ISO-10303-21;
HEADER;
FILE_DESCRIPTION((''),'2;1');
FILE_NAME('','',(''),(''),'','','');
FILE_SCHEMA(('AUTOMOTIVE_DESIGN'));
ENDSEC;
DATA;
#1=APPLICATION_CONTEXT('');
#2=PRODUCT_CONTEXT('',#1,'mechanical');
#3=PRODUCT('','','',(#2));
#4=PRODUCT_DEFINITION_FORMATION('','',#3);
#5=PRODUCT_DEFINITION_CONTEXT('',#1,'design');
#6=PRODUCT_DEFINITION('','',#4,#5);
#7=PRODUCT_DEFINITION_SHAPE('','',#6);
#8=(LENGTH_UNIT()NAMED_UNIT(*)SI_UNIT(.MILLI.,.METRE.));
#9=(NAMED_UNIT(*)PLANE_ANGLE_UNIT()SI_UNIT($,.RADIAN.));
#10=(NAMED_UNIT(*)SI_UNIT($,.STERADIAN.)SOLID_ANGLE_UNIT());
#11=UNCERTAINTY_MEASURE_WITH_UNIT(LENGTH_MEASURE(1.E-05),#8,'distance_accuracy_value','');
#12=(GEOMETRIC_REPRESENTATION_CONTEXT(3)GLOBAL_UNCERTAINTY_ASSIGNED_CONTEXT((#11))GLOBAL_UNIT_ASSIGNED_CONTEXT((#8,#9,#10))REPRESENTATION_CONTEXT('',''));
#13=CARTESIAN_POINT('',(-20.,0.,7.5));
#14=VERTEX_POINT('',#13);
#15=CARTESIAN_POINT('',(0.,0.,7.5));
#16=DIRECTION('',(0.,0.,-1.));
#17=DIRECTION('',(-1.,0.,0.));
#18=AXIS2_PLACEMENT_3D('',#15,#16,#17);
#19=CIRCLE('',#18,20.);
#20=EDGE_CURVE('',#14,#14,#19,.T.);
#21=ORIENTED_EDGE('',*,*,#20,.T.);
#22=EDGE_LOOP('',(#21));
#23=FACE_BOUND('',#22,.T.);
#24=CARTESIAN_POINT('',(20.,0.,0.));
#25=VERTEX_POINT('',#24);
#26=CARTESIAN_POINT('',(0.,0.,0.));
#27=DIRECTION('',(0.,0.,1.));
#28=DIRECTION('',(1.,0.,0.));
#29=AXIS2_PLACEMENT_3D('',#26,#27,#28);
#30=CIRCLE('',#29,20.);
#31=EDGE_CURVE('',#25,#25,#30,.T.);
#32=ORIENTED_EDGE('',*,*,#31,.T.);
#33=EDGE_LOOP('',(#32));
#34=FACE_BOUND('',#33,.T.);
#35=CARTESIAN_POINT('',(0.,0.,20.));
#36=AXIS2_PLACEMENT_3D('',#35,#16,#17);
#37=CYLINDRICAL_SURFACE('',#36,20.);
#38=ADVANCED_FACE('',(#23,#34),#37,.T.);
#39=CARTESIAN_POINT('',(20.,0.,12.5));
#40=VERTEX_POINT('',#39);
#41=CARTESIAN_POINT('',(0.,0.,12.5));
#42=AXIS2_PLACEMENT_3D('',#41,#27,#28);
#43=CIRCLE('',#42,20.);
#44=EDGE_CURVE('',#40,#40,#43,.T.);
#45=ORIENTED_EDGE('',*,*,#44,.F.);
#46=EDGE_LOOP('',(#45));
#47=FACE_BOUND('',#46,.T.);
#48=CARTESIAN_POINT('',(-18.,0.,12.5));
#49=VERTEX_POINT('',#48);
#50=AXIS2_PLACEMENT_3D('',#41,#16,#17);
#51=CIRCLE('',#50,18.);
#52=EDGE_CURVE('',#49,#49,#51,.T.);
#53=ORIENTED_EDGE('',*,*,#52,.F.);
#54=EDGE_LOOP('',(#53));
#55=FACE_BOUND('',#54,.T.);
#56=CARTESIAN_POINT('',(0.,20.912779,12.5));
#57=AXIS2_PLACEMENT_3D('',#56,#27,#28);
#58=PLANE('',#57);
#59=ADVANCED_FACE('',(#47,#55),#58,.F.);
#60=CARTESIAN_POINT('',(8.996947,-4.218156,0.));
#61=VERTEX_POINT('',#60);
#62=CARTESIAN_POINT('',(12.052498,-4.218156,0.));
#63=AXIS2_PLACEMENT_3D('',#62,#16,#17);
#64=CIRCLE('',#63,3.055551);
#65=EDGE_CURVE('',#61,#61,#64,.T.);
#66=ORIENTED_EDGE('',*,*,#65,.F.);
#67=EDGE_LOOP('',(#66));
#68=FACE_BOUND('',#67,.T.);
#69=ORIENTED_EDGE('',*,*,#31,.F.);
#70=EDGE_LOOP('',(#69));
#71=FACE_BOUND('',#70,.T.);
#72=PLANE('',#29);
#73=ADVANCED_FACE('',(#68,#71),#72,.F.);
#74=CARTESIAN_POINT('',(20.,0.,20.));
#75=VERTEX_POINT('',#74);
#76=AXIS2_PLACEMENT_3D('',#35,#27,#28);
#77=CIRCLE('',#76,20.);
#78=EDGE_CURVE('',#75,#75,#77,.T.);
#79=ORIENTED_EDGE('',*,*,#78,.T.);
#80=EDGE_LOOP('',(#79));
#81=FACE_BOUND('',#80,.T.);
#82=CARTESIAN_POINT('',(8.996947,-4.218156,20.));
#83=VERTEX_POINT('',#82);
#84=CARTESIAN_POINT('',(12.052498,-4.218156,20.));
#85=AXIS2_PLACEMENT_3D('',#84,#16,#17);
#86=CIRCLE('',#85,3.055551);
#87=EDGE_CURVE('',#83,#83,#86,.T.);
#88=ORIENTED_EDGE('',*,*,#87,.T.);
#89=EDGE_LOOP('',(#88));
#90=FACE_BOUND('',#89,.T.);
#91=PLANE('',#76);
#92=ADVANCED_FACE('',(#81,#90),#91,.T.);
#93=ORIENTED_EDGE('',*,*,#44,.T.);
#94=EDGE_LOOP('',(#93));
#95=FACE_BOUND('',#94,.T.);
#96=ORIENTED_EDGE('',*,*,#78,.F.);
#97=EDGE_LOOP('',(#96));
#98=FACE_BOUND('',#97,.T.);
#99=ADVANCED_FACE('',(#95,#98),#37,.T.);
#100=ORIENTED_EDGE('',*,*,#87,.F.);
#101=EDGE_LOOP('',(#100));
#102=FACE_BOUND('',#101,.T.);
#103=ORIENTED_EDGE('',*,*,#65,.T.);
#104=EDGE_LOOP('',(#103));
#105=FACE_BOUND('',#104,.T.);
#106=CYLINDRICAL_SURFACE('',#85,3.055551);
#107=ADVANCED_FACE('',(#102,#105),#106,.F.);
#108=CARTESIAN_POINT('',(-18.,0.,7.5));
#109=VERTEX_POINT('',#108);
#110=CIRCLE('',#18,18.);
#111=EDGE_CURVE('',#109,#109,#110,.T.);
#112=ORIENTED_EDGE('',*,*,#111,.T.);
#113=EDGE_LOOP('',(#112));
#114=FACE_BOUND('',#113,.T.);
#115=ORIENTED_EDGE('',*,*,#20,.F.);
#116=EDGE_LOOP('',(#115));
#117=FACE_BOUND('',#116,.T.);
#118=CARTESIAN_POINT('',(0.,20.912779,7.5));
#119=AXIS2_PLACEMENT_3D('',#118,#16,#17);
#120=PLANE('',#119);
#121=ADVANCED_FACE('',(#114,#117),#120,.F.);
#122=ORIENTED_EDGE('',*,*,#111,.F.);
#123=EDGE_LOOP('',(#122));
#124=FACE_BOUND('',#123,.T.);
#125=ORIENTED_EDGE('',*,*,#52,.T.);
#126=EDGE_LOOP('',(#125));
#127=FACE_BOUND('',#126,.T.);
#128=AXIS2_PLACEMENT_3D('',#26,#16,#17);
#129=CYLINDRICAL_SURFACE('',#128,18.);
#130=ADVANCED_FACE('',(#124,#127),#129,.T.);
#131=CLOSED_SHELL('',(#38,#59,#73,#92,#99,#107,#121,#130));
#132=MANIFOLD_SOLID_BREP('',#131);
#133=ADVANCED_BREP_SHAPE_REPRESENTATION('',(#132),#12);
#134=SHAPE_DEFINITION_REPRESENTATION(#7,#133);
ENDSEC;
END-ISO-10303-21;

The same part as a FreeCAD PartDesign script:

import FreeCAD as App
import Part
import Sketcher
from FreeCAD import Vector
Q = App.Units.Quantity


def add_polygon(sketch, points):
    """Adds a closed chain of lines whose ends are joined by coincident constraints."""
    first, n = sketch.GeometryCount, len(points)
    for a, b in zip(points, points[1:] + points[:1]):
        sketch.addGeometry(Part.LineSegment(App.Vector(*a, 0), App.Vector(*b, 0)), False)
    for i in range(n):
        sketch.addConstraint(Sketcher.Constraint("Coincident", first + i, 2, first + (i + 1) % n, 1))

doc = App.newDocument("Part")
body = doc.addObject("PartDesign::Body", "Body")

# Sketch on XY plane
sketch1 = body.newObject("Sketcher::SketchObject", "Sketch")
sketch1.AttachmentSupport = (doc.getObject("XY_Plane"), [""])
sketch1.MapMode = "FlatFace"
sketch1.addGeometry(Part.Circle(Vector(0, 0, 0), Vector(0, 0, 1), 20), False)
sketch1.addConstraint([
    Sketcher.Constraint("Coincident", 0, 3, -1, 1),
    Sketcher.Constraint("Diameter", 0, Q("40 mm")),
])
pad1 = body.newObject("PartDesign::Pad", "Pad")
pad1.Profile = sketch1
pad1.Length = 20

# Sketch on YZ plane
sketch2 = body.newObject("Sketcher::SketchObject", "Sketch001")
sketch2.AttachmentSupport = (doc.getObject("YZ_Plane"), [""])
sketch2.MapMode = "FlatFace"
add_polygon(sketch2, [(20.9, 12.5), (18, 12.5), (18, 7.5), (20.9, 7.5)])  # lines 0-3
sketch2.addConstraint([
    Sketcher.Constraint("Horizontal", 0),
    Sketcher.Constraint("Vertical", 1),
    Sketcher.Constraint("Horizontal", 2),
    Sketcher.Constraint("Vertical", 3),
    Sketcher.Constraint("DistanceY", 1, 2, 1, 1, Q("5 mm")),
    Sketcher.Constraint("DistanceX", -1, 1, 0, 2, Q("18 mm")),
    Sketcher.Constraint("DistanceY", -1, 1, 0, 2, Q("12.5 mm")),
    Sketcher.Constraint("DistanceX", 0, 2, 0, 1, Q("2.912779 mm")),
])
groove = body.newObject("PartDesign::Groove", "Groove")
groove.Profile = sketch2
groove.ReferenceAxis = (sketch2, ["V_Axis"])
groove.Angle = 360

# Sketch on XY plane
sketch3 = body.newObject("Sketcher::SketchObject", "Sketch002")
sketch3.AttachmentSupport = (doc.getObject("XY_Plane"), [""])
sketch3.MapMode = "FlatFace"
sketch3.addGeometry(Part.Circle(Vector(12.1, -4.2, 0), Vector(0, 0, 1), 3.1), False)
sketch3.addConstraint([
    Sketcher.Constraint("Diameter", 0, Q("6.111102 mm")),
    Sketcher.Constraint("DistanceX", -1, 1, 0, 3, Q("12.052498 mm")),
    Sketcher.Constraint("DistanceY", 0, 3, -1, 1, Q("4.218156 mm")),
])
pocket1 = body.newObject("PartDesign::Pocket", "Pocket")
pocket1.Profile = sketch3
pocket1.Type = "ThroughAll"
pocket1.Reversed = True

doc.recompute()
